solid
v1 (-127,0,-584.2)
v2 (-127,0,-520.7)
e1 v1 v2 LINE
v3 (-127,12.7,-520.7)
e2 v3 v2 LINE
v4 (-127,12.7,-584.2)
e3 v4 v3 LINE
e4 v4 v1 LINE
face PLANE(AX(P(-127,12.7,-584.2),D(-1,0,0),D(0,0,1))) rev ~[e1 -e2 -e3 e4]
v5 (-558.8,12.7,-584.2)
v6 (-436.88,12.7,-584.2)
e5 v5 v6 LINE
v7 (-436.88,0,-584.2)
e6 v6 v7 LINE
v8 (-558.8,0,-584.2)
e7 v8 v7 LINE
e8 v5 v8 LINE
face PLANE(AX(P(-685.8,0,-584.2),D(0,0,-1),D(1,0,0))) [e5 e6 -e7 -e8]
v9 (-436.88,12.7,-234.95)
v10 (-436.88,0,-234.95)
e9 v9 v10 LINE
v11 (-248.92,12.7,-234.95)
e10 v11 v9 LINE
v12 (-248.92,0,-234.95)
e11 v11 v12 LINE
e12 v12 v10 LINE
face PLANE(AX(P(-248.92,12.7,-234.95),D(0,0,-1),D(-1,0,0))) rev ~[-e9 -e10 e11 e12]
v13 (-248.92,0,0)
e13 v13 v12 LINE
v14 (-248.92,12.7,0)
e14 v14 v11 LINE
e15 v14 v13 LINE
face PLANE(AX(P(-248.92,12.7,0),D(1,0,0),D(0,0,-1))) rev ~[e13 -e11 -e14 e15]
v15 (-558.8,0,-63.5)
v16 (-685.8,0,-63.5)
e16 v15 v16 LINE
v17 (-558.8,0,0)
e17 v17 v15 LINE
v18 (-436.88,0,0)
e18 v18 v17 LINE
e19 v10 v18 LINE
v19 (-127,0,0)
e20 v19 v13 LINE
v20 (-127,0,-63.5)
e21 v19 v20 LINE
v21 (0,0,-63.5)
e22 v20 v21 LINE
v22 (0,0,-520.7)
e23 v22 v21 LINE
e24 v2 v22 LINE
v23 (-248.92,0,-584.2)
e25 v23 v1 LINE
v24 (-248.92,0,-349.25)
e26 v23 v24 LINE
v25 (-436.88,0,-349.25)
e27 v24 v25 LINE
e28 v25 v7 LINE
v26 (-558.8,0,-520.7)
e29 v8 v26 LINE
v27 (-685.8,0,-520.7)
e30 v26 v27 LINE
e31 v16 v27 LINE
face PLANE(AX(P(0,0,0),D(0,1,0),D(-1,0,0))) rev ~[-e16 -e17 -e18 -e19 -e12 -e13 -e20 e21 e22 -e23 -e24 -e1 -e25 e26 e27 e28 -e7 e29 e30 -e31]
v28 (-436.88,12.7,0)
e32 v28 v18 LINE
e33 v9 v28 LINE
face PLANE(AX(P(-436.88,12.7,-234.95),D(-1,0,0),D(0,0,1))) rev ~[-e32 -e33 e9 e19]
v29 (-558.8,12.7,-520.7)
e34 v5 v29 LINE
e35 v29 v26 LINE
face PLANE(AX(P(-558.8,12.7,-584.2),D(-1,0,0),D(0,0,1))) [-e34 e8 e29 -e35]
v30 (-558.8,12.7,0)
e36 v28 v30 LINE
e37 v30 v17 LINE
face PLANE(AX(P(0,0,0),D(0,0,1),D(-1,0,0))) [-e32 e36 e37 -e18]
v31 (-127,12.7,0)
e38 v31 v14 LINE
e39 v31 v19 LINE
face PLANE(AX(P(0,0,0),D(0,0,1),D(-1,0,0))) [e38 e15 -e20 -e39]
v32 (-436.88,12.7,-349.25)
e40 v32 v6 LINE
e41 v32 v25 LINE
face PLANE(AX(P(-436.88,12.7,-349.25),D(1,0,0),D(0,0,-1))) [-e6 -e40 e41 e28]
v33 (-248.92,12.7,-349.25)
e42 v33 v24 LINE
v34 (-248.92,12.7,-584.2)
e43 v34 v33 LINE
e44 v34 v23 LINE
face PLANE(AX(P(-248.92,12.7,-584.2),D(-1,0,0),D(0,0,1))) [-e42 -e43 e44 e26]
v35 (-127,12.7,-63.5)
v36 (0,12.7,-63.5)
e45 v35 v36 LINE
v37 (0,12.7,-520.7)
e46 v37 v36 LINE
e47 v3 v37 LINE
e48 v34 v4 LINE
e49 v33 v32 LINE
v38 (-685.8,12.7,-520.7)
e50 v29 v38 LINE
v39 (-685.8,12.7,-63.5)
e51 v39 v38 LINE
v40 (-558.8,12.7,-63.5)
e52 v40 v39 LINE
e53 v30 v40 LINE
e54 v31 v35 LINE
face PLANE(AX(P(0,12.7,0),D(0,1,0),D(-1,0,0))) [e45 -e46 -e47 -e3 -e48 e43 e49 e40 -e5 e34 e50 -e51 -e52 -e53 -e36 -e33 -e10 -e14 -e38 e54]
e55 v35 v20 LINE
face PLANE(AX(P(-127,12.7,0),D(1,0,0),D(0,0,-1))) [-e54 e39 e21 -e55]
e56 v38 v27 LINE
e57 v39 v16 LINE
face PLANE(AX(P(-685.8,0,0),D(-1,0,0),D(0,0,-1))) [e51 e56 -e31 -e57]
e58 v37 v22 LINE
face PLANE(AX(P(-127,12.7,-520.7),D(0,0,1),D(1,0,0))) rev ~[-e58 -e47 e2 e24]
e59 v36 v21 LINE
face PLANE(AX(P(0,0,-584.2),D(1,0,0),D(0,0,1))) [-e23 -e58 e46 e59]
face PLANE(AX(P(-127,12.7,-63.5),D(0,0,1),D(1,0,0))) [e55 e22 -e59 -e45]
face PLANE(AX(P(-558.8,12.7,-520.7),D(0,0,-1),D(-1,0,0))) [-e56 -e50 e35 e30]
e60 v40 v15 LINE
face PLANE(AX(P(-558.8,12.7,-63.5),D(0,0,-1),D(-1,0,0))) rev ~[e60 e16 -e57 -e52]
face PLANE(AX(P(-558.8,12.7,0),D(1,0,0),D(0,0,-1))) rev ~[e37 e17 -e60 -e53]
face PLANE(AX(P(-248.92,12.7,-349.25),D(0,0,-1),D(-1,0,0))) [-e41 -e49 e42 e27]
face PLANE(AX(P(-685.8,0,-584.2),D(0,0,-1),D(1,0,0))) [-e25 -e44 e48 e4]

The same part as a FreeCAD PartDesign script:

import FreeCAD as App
import Part
import Sketcher
from FreeCAD import Vector
Q = App.Units.Quantity


def add_polygon(sketch, points):
    """Adds a closed chain of lines whose ends are joined by coincident constraints."""
    first, n = sketch.GeometryCount, len(points)
    for a, b in zip(points, points[1:] + points[:1]):
        sketch.addGeometry(Part.LineSegment(App.Vector(*a, 0), App.Vector(*b, 0)), False)
    for i in range(n):
        sketch.addConstraint(Sketcher.Constraint("Coincident", first + i, 2, first + (i + 1) % n, 1))

doc = App.newDocument("Part")
params = doc.addObject("Spreadsheet::Sheet", "Params")
for row, (alias, value) in enumerate([
    ("sketch1_width", "27 in"),
    ("sketch1_height", "23 in"),
    ("pad1_length", "0.5 in"),
    ("sketch2_width", "7.4 in"),
    ("sketch3_width", "5 in"),
    ("sketch3_height", "2.5 in"),
], start=1):
    params.set(f"A{row}", alias)
    params.set(f"B{row}", "=" + value)
    params.setAlias(f"B{row}", alias)

body = doc.addObject("PartDesign::Body", "Body")

# Sketch on XZ plane
sketch1 = body.newObject("Sketcher::SketchObject", "Sketch")
sketch1.AttachmentSupport = (doc.getObject("XZ_Plane"), [""])
sketch1.MapMode = "FlatFace"
add_polygon(sketch1, [(-686, 0), (0, 0), (0, -584), (-686, -584)])  # lines 0-3
sketch1.addConstraint([
    Sketcher.Constraint("Horizontal", 0),
    Sketcher.Constraint("Vertical", 1),
    Sketcher.Constraint("Horizontal", 2),
    Sketcher.Constraint("Vertical", 3),
    Sketcher.Constraint("Coincident", 0, 2, -1, 1),
    Sketcher.Constraint("DistanceX", 0, 1, 0, 2, Q("27 in")),
    Sketcher.Constraint("DistanceY", 1, 2, 1, 1, Q("23 in")),
])
sketch1.setExpression("Constraints[9]", "Params.sketch1_width")
sketch1.setExpression("Constraints[10]", "Params.sketch1_height")
pad1 = body.newObject("PartDesign::Pad", "Pad")
pad1.Profile = sketch1
pad1.setExpression("Length", "Params.pad1_length")
pad1.Reversed = True

# Sketch on XZ plane
sketch2 = body.newObject("Sketcher::SketchObject", "Sketch001")
sketch2.AttachmentSupport = (doc.getObject("XZ_Plane"), [""])
sketch2.MapMode = "FlatFace"
sketch2.AttachmentOffset = App.Placement(Vector(0, 0, -0.5 * 25.4), App.Rotation())
add_polygon(sketch2, [(-437, -235), (-437, 0), (-249, 0), (-249, -235)])  # lines 0-3
add_polygon(sketch2, [(-249, -349), (-249, -584), (-437, -584), (-437, -349)])  # lines 4-7
sketch2.addConstraint([
    Sketcher.Constraint("Vertical", 0),
    Sketcher.Constraint("Horizontal", 1),
    Sketcher.Constraint("Vertical", 2),
    Sketcher.Constraint("Horizontal", 3),
    Sketcher.Constraint("Vertical", 4),
    Sketcher.Constraint("Horizontal", 5),
    Sketcher.Constraint("Vertical", 6),
    Sketcher.Constraint("Horizontal", 7),
    Sketcher.Constraint("PointOnObject", 0, 2, -1),
    Sketcher.Constraint("Vertical", 2, 2, 4, 2),
    Sketcher.Constraint("Vertical", 3, 2, 5, 2),
    Sketcher.Constraint("Equal", 2, 4),
    Sketcher.Constraint("DistanceX", 1, 1, 1, 2, Q("7.4 in")),
    Sketcher.Constraint("DistanceY", 6, 2, 3, 2, Q("4.5 in")),
    Sketcher.Constraint("DistanceY", 4, 2, -1, 1, Q("23 in")),
    Sketcher.Constraint("DistanceX", 0, 2, -1, 1, Q("17.2 in")),
])
sketch2.setExpression("Constraints[20]", "Params.sketch2_width")
pocket1 = body.newObject("PartDesign::Pocket", "Pocket")
pocket1.Profile = sketch2
pocket1.Type = "ThroughAll"
pocket1.Reversed = True

# Sketch on XZ plane
sketch3 = body.newObject("Sketcher::SketchObject", "Sketch002")
sketch3.AttachmentSupport = (doc.getObject("XZ_Plane"), [""])
sketch3.MapMode = "FlatFace"
sketch3.AttachmentOffset = App.Placement(Vector(0, 0, -0.5 * 25.4), App.Rotation())
add_polygon(sketch3, [(-127, 0), (0, 0), (0, -64), (-127, -64)])  # lines 0-3
add_polygon(sketch3, [(-127, -521), (0, -521), (0, -584), (-127, -584)])  # lines 4-7
add_polygon(sketch3, [(-559, -584), (-686, -584), (-686, -521), (-559, -521)])  # lines 8-11
add_polygon(sketch3, [(-686, -64), (-686, 0), (-559, 0), (-559, -64)])  # lines 12-15
sketch3.addConstraint([
    Sketcher.Constraint("Horizontal", 0),
    Sketcher.Constraint("Vertical", 1),
    Sketcher.Constraint("Horizontal", 2),
    Sketcher.Constraint("Vertical", 3),
    Sketcher.Constraint("Horizontal", 4),
    Sketcher.Constraint("Vertical", 5),
    Sketcher.Constraint("Horizontal", 6),
    Sketcher.Constraint("Vertical", 7),
    Sketcher.Constraint("Horizontal", 8),
    Sketcher.Constraint("Vertical", 9),
    Sketcher.Constraint("Horizontal", 10),
    Sketcher.Constraint("Vertical", 11),
    Sketcher.Constraint("Vertical", 12),
    Sketcher.Constraint("Horizontal", 13),
    Sketcher.Constraint("Vertical", 14),
    Sketcher.Constraint("Horizontal", 15),
    Sketcher.Constraint("Coincident", 0, 2, -1, 1),
    Sketcher.Constraint("PointOnObject", 4, 2, -2),
    Sketcher.Constraint("PointOnObject", 12, 2, -1),
    Sketcher.Constraint("Horizontal", 6, 2, 8, 2),
    Sketcher.Constraint("Horizontal", 7, 2, 9, 2),
    Sketcher.Constraint("Horizontal", 2, 2, 14, 2),
    Sketcher.Constraint("Vertical", 3, 2, 6, 2),
    Sketcher.Constraint("Vertical", 9, 2, 12, 2),
    Sketcher.Constraint("Vertical", 11, 2, 13, 2),
    Sketcher.Constraint("Equal", 6, 8),
    Sketcher.Constraint("Equal", 3, 5),
    Sketcher.Constraint("DistanceX", 0, 1, 0, 2, Q("5 in")),
    Sketcher.Constraint("DistanceY", 1, 2, 1, 1, Q("2.5 in")),
    Sketcher.Constraint("DistanceY", 5, 2, -1, 1, Q("23 in")),
    Sketcher.Constraint("DistanceX", 8, 2, -1, 1, Q("27 in")),
])
sketch3.setExpression("Constraints[43]", "Params.sketch3_width")
sketch3.setExpression("Constraints[44]", "Params.sketch3_height")
pocket2 = body.newObject("PartDesign::Pocket", "Pocket001")
pocket2.Profile = sketch3
pocket2.Type = "ThroughAll"
pocket2.Reversed = True

doc.recompute()
